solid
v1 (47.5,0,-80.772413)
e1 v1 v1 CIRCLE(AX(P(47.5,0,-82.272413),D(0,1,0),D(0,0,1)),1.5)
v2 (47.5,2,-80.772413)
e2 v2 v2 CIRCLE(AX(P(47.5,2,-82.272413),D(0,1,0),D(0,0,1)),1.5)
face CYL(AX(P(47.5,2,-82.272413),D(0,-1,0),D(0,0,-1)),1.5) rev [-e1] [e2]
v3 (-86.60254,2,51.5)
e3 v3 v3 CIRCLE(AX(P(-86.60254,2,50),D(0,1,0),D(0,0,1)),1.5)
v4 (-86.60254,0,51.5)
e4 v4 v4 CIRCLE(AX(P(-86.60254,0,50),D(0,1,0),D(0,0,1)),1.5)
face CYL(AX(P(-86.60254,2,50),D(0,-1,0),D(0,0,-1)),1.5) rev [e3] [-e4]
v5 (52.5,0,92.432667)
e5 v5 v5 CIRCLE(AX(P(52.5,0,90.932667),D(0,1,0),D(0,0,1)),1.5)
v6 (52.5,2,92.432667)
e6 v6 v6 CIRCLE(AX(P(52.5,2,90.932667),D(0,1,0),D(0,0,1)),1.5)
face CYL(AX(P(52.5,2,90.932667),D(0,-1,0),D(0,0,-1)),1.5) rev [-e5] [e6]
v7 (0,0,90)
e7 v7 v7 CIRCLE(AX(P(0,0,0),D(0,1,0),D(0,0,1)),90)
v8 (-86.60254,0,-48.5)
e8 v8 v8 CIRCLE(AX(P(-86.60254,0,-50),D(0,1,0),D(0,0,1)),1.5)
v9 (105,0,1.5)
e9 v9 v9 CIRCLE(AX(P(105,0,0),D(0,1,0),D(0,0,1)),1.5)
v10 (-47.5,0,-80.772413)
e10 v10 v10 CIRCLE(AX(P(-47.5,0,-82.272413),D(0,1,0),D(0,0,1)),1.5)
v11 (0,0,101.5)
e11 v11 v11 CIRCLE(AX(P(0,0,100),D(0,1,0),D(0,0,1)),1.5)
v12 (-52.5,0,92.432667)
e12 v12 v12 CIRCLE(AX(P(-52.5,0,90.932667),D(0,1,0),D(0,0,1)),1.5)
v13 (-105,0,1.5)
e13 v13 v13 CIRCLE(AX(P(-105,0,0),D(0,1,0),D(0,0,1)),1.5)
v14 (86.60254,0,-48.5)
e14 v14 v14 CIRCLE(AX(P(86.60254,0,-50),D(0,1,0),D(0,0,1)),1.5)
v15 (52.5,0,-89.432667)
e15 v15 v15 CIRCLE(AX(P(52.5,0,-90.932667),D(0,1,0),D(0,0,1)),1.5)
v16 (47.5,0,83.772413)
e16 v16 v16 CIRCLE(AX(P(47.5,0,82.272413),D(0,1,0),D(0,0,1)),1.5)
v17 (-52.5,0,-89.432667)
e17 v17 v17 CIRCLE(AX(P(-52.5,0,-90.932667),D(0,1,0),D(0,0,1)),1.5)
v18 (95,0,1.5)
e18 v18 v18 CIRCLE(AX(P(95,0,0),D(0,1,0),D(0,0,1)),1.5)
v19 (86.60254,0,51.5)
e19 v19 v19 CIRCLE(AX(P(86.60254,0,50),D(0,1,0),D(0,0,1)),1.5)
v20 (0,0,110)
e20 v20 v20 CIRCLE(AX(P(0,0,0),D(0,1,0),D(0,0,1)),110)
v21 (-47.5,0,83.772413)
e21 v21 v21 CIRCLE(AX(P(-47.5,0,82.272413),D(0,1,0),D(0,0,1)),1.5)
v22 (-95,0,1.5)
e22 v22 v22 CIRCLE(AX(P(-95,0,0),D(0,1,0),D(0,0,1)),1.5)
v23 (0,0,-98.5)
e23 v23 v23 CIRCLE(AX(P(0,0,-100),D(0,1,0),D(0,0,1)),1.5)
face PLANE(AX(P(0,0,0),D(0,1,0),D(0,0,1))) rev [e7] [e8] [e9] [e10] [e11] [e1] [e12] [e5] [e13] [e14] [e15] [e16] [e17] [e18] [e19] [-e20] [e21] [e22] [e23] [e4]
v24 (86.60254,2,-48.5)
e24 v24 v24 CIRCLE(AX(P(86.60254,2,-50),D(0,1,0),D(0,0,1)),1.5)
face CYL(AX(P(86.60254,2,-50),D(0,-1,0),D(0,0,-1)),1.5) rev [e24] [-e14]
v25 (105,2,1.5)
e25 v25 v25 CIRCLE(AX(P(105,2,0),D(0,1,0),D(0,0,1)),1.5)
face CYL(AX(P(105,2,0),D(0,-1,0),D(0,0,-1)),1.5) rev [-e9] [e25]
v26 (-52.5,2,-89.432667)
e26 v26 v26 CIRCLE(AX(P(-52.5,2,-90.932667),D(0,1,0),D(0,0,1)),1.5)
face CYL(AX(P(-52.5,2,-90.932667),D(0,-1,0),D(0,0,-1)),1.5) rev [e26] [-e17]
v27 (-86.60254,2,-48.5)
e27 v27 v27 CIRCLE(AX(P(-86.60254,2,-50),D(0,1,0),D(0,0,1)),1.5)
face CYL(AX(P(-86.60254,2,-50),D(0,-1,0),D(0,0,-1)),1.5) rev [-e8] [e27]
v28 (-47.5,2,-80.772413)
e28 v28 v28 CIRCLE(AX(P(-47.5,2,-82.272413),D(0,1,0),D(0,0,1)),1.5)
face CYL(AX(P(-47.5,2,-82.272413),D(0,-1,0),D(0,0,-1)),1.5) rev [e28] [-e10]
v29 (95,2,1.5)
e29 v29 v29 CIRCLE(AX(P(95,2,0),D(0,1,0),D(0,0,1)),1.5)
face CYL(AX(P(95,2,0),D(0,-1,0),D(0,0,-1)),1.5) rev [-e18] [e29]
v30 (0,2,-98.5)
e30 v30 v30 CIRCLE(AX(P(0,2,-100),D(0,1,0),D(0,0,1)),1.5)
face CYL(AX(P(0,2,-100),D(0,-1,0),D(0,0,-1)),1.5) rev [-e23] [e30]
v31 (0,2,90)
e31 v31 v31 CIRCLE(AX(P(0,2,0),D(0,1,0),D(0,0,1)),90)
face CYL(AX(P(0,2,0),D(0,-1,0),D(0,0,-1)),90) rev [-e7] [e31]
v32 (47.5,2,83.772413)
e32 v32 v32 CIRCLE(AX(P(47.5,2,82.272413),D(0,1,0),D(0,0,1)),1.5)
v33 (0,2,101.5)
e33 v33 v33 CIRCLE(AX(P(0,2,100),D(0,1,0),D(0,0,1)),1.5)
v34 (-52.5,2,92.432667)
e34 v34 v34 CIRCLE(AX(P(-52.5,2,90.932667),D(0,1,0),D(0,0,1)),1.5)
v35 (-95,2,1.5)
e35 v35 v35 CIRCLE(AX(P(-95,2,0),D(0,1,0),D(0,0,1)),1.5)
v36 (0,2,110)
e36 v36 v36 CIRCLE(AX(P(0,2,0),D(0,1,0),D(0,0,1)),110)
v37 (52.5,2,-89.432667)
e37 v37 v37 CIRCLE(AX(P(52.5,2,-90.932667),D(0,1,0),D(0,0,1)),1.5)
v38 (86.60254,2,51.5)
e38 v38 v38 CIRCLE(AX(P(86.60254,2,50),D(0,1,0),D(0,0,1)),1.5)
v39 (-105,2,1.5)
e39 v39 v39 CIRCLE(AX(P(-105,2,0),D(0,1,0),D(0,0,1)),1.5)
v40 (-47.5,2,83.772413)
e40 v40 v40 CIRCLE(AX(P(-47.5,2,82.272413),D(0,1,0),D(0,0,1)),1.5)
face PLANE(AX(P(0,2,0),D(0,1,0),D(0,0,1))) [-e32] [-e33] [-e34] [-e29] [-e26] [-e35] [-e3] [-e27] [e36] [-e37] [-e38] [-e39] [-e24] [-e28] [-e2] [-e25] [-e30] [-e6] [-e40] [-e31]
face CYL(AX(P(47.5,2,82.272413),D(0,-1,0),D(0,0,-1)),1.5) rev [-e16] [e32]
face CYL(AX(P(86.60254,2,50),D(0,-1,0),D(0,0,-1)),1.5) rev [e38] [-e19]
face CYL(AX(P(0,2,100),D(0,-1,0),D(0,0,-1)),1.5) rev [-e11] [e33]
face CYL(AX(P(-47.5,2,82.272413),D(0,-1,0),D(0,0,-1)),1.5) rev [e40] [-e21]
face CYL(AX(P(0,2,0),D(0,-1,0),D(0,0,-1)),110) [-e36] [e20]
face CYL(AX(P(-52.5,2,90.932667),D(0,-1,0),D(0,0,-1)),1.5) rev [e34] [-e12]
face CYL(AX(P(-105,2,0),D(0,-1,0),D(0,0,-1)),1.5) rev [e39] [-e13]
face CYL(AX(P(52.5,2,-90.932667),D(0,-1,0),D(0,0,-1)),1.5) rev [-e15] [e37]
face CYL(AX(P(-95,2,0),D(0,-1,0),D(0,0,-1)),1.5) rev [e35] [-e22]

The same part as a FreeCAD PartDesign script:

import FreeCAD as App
import Part
import Sketcher

V = App.Vector
Q = App.Units.Quantity

doc = App.newDocument("Part")
params = doc.addObject("Spreadsheet::Sheet", "Params")
for row, (alias, value) in enumerate([
    ("sketch1_diameter", "220 mm"),
    ("sketch1_diameter2", "3 mm"),
    ("sketch1_diameter3", "180 mm"),
    ("pad1_length", "2 mm"),
], start=1):
    params.set(f"A{row}", alias)
    params.set(f"B{row}", "=" + value)
    params.setAlias(f"B{row}", alias)

body = doc.addObject("PartDesign::Body", "Body")

# Sketch on XZ plane
sketch1 = body.newObject("Sketcher::SketchObject", "Sketch")
sketch1.AttachmentSupport = (doc.getObject("XZ_Plane"), [""])
sketch1.MapMode = "FlatFace"
sketch1.addGeometry([
    Part.Circle(V(0, 0, 0), V(0, 0, 1), 110),  # 0
    Part.Circle(V(-86.6, -50, 0), V(0, 0, 1), 1.5),  # 1
    Part.Circle(V(-52.5, -90.9, 0), V(0, 0, 1), 1.5),  # 2
    Part.Circle(V(-47.5, -82.3, 0), V(0, 0, 1), 1.5),  # 3
    Part.Circle(V(0, -100, 0), V(0, 0, 1), 1.5),  # 4
    Part.Circle(V(-105, 0, 0), V(0, 0, 1), 1.5),  # 5
    Part.Circle(V(-95, 0, 0), V(0, 0, 1), 1.5),  # 6
    Part.Circle(V(-86.6, 50, 0), V(0, 0, 1), 1.5),  # 7
    Part.Circle(V(-47.5, 82.3, 0), V(0, 0, 1), 1.5),  # 8
    Part.Circle(V(-52.5, 90.9, 0), V(0, 0, 1), 1.5),  # 9
    Part.Circle(V(52.5, -90.9, 0), V(0, 0, 1), 1.5),  # 10
    Part.Circle(V(47.5, -82.3, 0), V(0, 0, 1), 1.5),  # 11
    Part.Circle(V(86.6, -50, 0), V(0, 0, 1), 1.5),  # 12
    Part.Circle(V(95, 0, 0), V(0, 0, 1), 1.5),  # 13
    Part.Circle(V(105, 0, 0), V(0, 0, 1), 1.5),  # 14
    Part.Circle(V(0, 0, 0), V(0, 0, 1), 90),  # 15
    Part.Circle(V(0, 100, 0), V(0, 0, 1), 1.5),  # 16
    Part.Circle(V(47.5, 82.3, 0), V(0, 0, 1), 1.5),  # 17
    Part.Circle(V(52.5, 90.9, 0), V(0, 0, 1), 1.5),  # 18
    Part.Circle(V(86.6, 50, 0), V(0, 0, 1), 1.5),  # 19
], False)
sketch1.addConstraint([
    Sketcher.Constraint("Coincident", 0, 3, -1, 1),
    Sketcher.Constraint("Coincident", 15, 3, -1, 1),
    Sketcher.Constraint("Equal", 1, 2),
    Sketcher.Constraint("Equal", 2, 3),
    Sketcher.Constraint("Equal", 3, 4),
    Sketcher.Constraint("Equal", 4, 5),
    Sketcher.Constraint("Equal", 5, 6),
    Sketcher.Constraint("Equal", 6, 7),
    Sketcher.Constraint("Equal", 7, 8),
    Sketcher.Constraint("Equal", 8, 9),
    Sketcher.Constraint("Equal", 9, 10),
    Sketcher.Constraint("Equal", 10, 11),
    Sketcher.Constraint("Equal", 11, 12),
    Sketcher.Constraint("Equal", 12, 13),
    Sketcher.Constraint("Equal", 13, 14),
    Sketcher.Constraint("Equal", 14, 16),
    Sketcher.Constraint("Equal", 16, 17),
    Sketcher.Constraint("Equal", 17, 18),
    Sketcher.Constraint("Equal", 18, 19),
    Sketcher.Constraint("Symmetric", 9, 3, 10, 3, -1, 1),
    Sketcher.Constraint("Symmetric", 8, 3, 11, 3, -1, 1),
    Sketcher.Constraint("Symmetric", 7, 3, 12, 3, -1, 1),
    Sketcher.Constraint("Symmetric", 6, 3, 13, 3, -1, 1),
    Sketcher.Constraint("Symmetric", 5, 3, 14, 3, -1, 1),
    Sketcher.Constraint("Symmetric", 4, 3, 16, 3, -1, 1),
    Sketcher.Constraint("Symmetric", 3, 3, 17, 3, -1, 1),
    Sketcher.Constraint("Symmetric", 2, 3, 18, 3, -1, 1),
    Sketcher.Constraint("Symmetric", 1, 3, 19, 3, -1, 1),
    Sketcher.Constraint("Symmetric", 2, 3, 10, 3, -2),
    Sketcher.Constraint("Symmetric", 3, 3, 11, 3, -2),
    Sketcher.Constraint("Symmetric", 1, 3, 12, 3, -2),
    Sketcher.Constraint("PointOnObject", 4, 3, -2),
    Sketcher.Constraint("PointOnObject", 5, 3, -1),
    Sketcher.Constraint("PointOnObject", 6, 3, -1),
    Sketcher.Constraint("Diameter", 0, Q("220 mm")),
    Sketcher.Constraint("Diameter", 1, Q("3 mm")),
    Sketcher.Constraint("Diameter", 15, Q("180 mm")),
    Sketcher.Constraint("DistanceY", 1, 3, -1, 1, Q("50 mm")),
    Sketcher.Constraint("DistanceY", 4, 3, -1, 1, Q("100 mm")),
    Sketcher.Constraint("DistanceX", 5, 3, -1, 1, Q("105 mm")),
    Sketcher.Constraint("DistanceX", 6, 3, -1, 1, Q("95 mm")),
    Sketcher.Constraint("DistanceX", 2, 3, 3, 3, Q("5 mm")),
    Sketcher.Constraint("DistanceX", 3, 3, 10, 3, Q("100 mm")),
    Sketcher.Constraint("DistanceX", 1, 3, -1, 1, Q("86.60254 mm")),
    Sketcher.Constraint("DistanceY", 2, 3, -1, 1, Q("90.932667 mm")),
    Sketcher.Constraint("DistanceY", 3, 3, -1, 1, Q("82.272413 mm")),
])
sketch1.setExpression("Constraints[34]", "Params.sketch1_diameter")
sketch1.setExpression("Constraints[35]", "Params.sketch1_diameter2")
sketch1.setExpression("Constraints[36]", "Params.sketch1_diameter3")
pad1 = body.newObject("PartDesign::Pad", "Pad")
pad1.Profile = sketch1
pad1.setExpression("Length", "Params.pad1_length")
pad1.Reversed = True

doc.recompute()
